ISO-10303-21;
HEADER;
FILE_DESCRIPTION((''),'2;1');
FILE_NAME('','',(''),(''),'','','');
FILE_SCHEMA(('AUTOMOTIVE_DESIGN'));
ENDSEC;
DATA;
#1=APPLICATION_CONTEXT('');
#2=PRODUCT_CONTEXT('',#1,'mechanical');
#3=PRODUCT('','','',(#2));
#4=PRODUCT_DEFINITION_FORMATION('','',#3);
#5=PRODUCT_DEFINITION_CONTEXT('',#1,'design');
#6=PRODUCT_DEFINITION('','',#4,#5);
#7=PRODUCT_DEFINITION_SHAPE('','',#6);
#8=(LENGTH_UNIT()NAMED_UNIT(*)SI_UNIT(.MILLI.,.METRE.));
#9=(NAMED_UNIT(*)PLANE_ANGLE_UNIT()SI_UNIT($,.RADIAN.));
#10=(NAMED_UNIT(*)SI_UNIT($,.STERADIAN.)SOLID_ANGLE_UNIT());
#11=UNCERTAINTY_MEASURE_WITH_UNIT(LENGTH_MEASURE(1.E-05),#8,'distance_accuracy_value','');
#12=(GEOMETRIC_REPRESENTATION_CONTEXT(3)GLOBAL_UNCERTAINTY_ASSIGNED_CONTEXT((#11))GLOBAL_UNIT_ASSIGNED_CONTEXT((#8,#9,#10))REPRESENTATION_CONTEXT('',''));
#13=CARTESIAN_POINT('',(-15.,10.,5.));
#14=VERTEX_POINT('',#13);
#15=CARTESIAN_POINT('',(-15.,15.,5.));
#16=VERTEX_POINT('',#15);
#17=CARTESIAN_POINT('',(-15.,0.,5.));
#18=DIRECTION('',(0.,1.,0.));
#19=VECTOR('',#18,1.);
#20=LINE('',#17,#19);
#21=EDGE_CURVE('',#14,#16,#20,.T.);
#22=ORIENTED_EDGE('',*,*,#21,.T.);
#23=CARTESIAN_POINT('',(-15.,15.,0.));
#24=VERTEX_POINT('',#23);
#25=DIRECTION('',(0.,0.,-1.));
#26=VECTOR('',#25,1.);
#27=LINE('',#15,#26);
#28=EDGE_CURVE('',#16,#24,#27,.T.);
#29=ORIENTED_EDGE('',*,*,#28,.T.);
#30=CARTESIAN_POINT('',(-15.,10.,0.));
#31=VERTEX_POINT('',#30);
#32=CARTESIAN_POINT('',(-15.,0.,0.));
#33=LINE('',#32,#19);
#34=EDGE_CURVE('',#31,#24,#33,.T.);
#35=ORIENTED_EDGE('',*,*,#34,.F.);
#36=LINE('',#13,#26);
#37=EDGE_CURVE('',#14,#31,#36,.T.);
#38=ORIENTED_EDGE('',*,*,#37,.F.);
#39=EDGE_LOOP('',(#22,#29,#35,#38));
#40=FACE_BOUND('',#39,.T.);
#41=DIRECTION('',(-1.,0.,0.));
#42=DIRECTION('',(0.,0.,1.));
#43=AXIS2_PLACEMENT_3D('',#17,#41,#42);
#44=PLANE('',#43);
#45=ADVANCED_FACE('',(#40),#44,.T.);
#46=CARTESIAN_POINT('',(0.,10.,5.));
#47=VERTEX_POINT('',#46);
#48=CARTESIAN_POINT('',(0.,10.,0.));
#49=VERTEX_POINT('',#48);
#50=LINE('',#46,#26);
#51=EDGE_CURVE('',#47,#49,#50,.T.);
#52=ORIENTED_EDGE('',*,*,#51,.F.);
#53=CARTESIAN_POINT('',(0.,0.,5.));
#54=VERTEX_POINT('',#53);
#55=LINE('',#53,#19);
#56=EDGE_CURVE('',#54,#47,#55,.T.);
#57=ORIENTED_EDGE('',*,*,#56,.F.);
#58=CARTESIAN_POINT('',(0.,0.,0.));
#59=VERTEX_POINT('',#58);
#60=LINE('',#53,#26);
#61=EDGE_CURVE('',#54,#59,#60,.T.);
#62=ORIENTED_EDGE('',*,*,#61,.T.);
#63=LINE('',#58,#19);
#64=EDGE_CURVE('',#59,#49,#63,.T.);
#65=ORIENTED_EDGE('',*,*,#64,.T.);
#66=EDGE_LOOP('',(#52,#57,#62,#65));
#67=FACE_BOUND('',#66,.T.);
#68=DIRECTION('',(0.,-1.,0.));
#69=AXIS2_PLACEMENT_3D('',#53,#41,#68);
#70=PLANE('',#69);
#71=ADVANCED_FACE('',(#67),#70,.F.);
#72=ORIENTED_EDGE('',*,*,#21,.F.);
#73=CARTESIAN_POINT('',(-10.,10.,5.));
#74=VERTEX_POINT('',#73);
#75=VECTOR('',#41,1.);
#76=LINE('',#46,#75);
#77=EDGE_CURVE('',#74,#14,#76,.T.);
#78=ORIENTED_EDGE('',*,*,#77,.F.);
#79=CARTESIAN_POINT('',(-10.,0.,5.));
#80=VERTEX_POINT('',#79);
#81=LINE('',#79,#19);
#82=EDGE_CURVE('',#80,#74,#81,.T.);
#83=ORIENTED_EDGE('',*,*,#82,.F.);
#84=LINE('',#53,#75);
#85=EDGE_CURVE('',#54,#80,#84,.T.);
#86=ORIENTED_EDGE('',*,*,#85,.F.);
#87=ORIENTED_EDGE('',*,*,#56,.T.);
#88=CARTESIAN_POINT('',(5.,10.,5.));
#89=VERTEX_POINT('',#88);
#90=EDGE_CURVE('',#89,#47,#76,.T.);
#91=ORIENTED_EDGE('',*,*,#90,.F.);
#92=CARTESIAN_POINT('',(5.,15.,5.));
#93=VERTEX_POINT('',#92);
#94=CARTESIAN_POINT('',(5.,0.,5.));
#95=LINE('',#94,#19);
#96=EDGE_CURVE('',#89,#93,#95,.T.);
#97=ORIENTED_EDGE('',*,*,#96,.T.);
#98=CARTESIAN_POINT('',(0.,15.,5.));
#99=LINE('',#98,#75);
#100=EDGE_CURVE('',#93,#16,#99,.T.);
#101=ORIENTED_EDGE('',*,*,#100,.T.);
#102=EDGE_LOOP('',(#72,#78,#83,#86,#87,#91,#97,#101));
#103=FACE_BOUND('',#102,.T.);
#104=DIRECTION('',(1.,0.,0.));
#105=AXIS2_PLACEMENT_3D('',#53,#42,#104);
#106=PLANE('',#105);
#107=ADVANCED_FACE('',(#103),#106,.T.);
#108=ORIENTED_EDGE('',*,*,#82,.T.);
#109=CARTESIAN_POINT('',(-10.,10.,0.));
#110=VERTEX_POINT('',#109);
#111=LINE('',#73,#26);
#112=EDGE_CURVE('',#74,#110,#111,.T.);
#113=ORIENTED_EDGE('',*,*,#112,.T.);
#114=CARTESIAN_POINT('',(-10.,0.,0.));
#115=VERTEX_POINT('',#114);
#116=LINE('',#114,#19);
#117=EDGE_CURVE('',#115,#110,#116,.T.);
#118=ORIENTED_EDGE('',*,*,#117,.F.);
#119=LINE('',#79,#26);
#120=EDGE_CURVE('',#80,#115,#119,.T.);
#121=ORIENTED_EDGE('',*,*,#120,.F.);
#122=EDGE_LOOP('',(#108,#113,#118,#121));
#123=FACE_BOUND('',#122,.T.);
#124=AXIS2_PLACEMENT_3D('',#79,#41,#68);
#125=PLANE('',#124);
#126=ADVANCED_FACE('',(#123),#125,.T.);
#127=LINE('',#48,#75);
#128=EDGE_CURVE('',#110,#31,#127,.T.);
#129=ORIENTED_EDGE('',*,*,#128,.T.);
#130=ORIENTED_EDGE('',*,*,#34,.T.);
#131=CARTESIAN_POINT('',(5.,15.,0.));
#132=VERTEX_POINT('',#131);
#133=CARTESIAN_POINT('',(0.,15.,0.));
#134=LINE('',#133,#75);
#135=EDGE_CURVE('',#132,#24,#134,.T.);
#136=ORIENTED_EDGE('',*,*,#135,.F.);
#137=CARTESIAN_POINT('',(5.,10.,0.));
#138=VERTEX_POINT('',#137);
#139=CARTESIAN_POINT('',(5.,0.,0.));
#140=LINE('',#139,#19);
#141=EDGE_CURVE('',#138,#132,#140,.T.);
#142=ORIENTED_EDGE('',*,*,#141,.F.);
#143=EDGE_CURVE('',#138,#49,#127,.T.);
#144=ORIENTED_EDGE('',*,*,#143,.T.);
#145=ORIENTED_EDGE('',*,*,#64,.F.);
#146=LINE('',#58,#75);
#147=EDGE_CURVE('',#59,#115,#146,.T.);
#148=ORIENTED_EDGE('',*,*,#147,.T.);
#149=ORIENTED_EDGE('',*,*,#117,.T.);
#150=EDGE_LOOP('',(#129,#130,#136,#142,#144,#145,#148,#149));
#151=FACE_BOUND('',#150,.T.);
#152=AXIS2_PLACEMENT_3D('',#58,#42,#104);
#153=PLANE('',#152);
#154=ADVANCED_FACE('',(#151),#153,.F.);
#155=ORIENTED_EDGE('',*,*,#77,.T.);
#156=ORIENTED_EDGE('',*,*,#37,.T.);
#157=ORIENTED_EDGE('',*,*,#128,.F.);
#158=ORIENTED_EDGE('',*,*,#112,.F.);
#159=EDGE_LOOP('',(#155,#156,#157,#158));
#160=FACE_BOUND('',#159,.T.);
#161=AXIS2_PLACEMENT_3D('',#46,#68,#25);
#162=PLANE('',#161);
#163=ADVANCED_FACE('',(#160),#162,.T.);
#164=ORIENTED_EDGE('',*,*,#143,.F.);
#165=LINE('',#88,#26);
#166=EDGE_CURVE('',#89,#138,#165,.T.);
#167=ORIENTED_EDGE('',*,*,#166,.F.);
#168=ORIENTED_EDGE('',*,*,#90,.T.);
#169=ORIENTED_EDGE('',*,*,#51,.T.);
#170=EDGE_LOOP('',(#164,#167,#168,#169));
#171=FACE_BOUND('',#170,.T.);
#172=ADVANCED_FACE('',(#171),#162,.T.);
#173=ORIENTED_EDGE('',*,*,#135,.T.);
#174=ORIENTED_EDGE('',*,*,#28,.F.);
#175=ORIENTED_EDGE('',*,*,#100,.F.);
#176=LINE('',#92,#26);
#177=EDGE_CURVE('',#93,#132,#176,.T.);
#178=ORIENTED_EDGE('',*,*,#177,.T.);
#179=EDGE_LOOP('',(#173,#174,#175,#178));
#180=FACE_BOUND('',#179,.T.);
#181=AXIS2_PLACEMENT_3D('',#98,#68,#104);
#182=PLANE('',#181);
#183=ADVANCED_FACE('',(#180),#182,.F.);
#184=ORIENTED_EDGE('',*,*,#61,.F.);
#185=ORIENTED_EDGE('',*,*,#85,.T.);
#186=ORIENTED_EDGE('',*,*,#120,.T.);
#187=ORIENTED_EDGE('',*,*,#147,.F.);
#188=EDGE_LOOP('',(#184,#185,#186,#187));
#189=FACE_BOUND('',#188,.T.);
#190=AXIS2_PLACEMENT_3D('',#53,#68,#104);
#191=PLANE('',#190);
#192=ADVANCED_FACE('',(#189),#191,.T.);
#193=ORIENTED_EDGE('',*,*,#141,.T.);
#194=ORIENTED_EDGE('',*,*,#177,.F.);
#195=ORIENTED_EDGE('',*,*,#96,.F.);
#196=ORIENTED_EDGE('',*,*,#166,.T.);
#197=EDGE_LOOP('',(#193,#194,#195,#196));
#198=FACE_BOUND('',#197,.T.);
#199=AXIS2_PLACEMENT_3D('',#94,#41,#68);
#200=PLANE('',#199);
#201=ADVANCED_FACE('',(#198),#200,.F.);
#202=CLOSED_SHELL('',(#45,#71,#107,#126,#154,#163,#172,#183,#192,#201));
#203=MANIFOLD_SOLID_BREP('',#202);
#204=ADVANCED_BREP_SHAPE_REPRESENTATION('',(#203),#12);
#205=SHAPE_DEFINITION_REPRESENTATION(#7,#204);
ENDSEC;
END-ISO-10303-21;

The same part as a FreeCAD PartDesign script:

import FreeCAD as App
import Part
import Sketcher
Q = App.Units.Quantity


def add_polygon(sketch, points):
    """Adds a closed chain of lines whose ends are joined by coincident constraints."""
    first, n = sketch.GeometryCount, len(points)
    for a, b in zip(points, points[1:] + points[:1]):
        sketch.addGeometry(Part.LineSegment(App.Vector(*a, 0), App.Vector(*b, 0)), False)
    for i in range(n):
        sketch.addConstraint(Sketcher.Constraint("Coincident", first + i, 2, first + (i + 1) % n, 1))

doc = App.newDocument("Part")
params = doc.addObject("Spreadsheet::Sheet", "Params")
for row, (alias, value) in enumerate([
    ("sketch1_width", "20 mm"),
    ("sketch1_width2", "5 mm"),
    ("pad1_length", "5 mm"),
], start=1):
    params.set(f"A{row}", alias)
    params.set(f"B{row}", "=" + value)
    params.setAlias(f"B{row}", alias)

body = doc.addObject("PartDesign::Body", "Body")

sketch1 = body.newObject("Sketcher::SketchObject", "Sketch")
sketch1.AttachmentSupport = (doc.getObject("XY_Plane"), [""])
sketch1.MapMode = "FlatFace"
add_polygon(sketch1, [(5, 10), (5, 15), (-15, 15), (-15, 10), (-10, 10), (-10, 0), (0, 0), (0, 10)])
sketch1.addConstraint(Sketcher.Constraint("Vertical", 0))
sketch1.addConstraint(Sketcher.Constraint("Horizontal", 1))
sketch1.addConstraint(Sketcher.Constraint("Vertical", 2))
sketch1.addConstraint(Sketcher.Constraint("Horizontal", 3))
sketch1.addConstraint(Sketcher.Constraint("Vertical", 4))
sketch1.addConstraint(Sketcher.Constraint("Horizontal", 5))
sketch1.addConstraint(Sketcher.Constraint("Vertical", 6))
sketch1.addConstraint(Sketcher.Constraint("Horizontal", 7))
sketch1.addConstraint(Sketcher.Constraint("Coincident", 5, 2, -1, 1))
sketch1.addConstraint(Sketcher.Constraint("Horizontal", 3, 2, 6, 2))
sketch1.addConstraint(Sketcher.Constraint("Equal", 3, 7))
sketch1.addConstraint(Sketcher.Constraint("Equal", 7, 0))
sketch1.addConstraint(Sketcher.Constraint("Equal", 5, 4))
sketch1.addConstraint(Sketcher.Constraint("DistanceX", 1, 2, 1, 1, Q("20 mm")))
sketch1.addConstraint(Sketcher.Constraint("DistanceX", 3, 1, 3, 2, Q("5 mm")))
sketch1.setExpression("Constraints[21]", "Params.sketch1_width")
sketch1.setExpression("Constraints[22]", "Params.sketch1_width2")
pad1 = body.newObject("PartDesign::Pad", "Pad")
pad1.Profile = sketch1
pad1.setExpression("Length", "Params.pad1_length")

doc.recompute()
